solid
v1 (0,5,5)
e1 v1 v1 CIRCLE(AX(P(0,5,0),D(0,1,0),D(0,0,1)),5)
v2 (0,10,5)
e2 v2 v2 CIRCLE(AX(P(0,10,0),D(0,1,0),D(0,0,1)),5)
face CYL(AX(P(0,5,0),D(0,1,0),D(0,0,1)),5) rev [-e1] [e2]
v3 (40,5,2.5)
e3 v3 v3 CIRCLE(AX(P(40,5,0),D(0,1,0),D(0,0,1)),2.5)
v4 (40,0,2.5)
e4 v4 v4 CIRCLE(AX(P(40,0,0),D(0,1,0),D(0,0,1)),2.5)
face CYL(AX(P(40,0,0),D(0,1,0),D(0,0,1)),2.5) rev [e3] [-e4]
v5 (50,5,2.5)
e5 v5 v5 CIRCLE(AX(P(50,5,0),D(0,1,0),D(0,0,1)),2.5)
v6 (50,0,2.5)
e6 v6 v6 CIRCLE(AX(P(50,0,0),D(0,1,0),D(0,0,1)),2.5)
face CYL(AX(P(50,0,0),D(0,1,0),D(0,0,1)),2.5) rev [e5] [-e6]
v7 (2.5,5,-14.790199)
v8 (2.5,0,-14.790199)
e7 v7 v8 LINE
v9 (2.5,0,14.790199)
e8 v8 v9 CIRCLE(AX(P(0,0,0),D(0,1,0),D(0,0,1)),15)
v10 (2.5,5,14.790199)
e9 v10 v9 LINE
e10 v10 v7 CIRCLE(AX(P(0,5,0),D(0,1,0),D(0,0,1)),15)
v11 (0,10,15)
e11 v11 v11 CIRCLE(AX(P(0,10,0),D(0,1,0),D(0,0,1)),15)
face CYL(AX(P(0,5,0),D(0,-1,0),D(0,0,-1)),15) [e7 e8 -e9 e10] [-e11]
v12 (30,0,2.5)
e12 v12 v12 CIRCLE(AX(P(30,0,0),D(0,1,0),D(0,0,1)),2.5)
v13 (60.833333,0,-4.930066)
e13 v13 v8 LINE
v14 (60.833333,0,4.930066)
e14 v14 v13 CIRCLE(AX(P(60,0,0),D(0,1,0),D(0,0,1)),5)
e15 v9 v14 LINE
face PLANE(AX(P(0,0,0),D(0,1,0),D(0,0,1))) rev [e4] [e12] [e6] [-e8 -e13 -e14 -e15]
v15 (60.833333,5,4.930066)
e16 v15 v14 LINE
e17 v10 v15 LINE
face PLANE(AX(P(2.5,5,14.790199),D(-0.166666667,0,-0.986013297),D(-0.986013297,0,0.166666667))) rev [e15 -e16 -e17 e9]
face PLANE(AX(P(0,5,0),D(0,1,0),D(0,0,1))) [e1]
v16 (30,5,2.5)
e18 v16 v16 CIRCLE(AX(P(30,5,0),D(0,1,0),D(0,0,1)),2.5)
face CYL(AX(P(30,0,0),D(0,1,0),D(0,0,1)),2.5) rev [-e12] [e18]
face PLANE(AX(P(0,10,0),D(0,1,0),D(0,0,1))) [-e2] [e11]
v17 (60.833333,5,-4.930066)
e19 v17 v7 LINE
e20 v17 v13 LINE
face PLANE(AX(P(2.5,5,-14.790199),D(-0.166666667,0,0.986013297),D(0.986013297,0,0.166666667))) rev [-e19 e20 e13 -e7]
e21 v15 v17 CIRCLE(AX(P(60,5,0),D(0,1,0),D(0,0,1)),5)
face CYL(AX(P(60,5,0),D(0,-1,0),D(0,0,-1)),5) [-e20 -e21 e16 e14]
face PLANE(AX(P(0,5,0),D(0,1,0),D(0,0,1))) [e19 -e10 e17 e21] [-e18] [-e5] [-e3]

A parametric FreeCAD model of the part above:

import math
import FreeCAD as App
import Part
import Sketcher
from FreeCAD import Vector
Q = App.Units.Quantity

doc = App.newDocument("Part")
body = doc.addObject("PartDesign::Body", "Body")

sketch1 = body.newObject("Sketcher::SketchObject", "Sketch")
sketch1.AttachmentSupport = (doc.getObject("XZ_Plane"), [""])
sketch1.MapMode = "FlatFace"
sketch1.addGeometry([
    Part.LineSegment(Vector(61, -5, 0), Vector(2, -15, 0)),
    Part.ArcOfCircle(Part.Circle(Vector(0, 0, 0), Vector(0, 0, 1), 15), math.radians(80), math.radians(280)),
    Part.LineSegment(Vector(2, 15, 0), Vector(61, 5, 0)),
    Part.ArcOfCircle(Part.Circle(Vector(60, 0, 0), Vector(0, 0, 1), 5), math.radians(-80), math.radians(80)),
], False)
sketch1.addConstraint([
    Sketcher.Constraint("Tangent", 0, 2, 1, 2),
    Sketcher.Constraint("Tangent", 1, 1, 2, 1),
    Sketcher.Constraint("Tangent", 2, 2, 3, 2),
    Sketcher.Constraint("Tangent", 3, 1, 0, 1),
    Sketcher.Constraint("Coincident", 1, 3, -1, 1),
    Sketcher.Constraint("PointOnObject", 3, 3, -1),
    Sketcher.Constraint("Radius", 1, Q("15 mm")),
    Sketcher.Constraint("Radius", 3, Q("5 mm")),
    Sketcher.Constraint("DistanceX", -1, 1, 3, 3, Q("60 mm")),
])
pad1 = body.newObject("PartDesign::Pad", "Pad")
pad1.Profile = sketch1
pad1.Length = 5
pad1.Reversed = True

sketch2 = body.newObject("Sketcher::SketchObject", "Sketch001")
sketch2.AttachmentSupport = (doc.getObject("XZ_Plane"), [""])
sketch2.MapMode = "FlatFace"
sketch2.AttachmentOffset = App.Placement(Vector(0, 0, -5), App.Rotation())
sketch2.addGeometry(Part.Circle(Vector(0, 0, 0), Vector(0, 0, 1), 15), False)
sketch2.addConstraint([
    Sketcher.Constraint("Coincident", 0, 3, -1, 1),
    Sketcher.Constraint("Diameter", 0, Q("30 mm")),
])
pad2 = body.newObject("PartDesign::Pad", "Pad001")
pad2.Profile = sketch2
pad2.Length = 5
pad2.Reversed = True

sketch3 = body.newObject("Sketcher::SketchObject", "Sketch002")
sketch3.AttachmentSupport = (doc.getObject("XZ_Plane"), [""])
sketch3.MapMode = "FlatFace"
sketch3.AttachmentOffset = App.Placement(Vector(0, 0, -10), App.Rotation())
sketch3.addGeometry(Part.Circle(Vector(0, 0, 0), Vector(0, 0, 1), 5), False)
sketch3.addConstraint([
    Sketcher.Constraint("Coincident", 0, 3, -1, 1),
    Sketcher.Constraint("Diameter", 0, Q("10 mm")),
])
pocket1 = body.newObject("PartDesign::Pocket", "Pocket")
pocket1.Profile = sketch3
pocket1.Length = 5
pocket1.Reversed = True

sketch4 = body.newObject("Sketcher::SketchObject", "Sketch003")
sketch4.AttachmentSupport = (doc.getObject("XZ_Plane"), [""])
sketch4.MapMode = "FlatFace"
sketch4.AttachmentOffset = App.Placement(Vector(0, 0, -5), App.Rotation())
sketch4.addGeometry([
    Part.Circle(Vector(50, 0, 0), Vector(0, 0, 1), 2.5),
    Part.Circle(Vector(40, 0, 0), Vector(0, 0, 1), 2.5),
    Part.Circle(Vector(30, 0, 0), Vector(0, 0, 1), 2.5),
], False)
sketch4.addConstraint([
    Sketcher.Constraint("Equal", 0, 1),
    Sketcher.Constraint("Equal", 1, 2),
    Sketcher.Constraint("PointOnObject", 0, 3, -1),
    Sketcher.Constraint("PointOnObject", 1, 3, -1),
    Sketcher.Constraint("PointOnObject", 2, 3, -1),
    Sketcher.Constraint("Diameter", 0, Q("5 mm")),
    Sketcher.Constraint("DistanceX", -1, 1, 0, 3, Q("50 mm")),
    Sketcher.Constraint("DistanceX", -1, 1, 1, 3, Q("40 mm")),
    Sketcher.Constraint("DistanceX", -1, 1, 2, 3, Q("30 mm")),
])
pocket2 = body.newObject("PartDesign::Pocket", "Pocket001")
pocket2.Profile = sketch4
pocket2.Length = 5
pocket2.Reversed = True

doc.recompute()
